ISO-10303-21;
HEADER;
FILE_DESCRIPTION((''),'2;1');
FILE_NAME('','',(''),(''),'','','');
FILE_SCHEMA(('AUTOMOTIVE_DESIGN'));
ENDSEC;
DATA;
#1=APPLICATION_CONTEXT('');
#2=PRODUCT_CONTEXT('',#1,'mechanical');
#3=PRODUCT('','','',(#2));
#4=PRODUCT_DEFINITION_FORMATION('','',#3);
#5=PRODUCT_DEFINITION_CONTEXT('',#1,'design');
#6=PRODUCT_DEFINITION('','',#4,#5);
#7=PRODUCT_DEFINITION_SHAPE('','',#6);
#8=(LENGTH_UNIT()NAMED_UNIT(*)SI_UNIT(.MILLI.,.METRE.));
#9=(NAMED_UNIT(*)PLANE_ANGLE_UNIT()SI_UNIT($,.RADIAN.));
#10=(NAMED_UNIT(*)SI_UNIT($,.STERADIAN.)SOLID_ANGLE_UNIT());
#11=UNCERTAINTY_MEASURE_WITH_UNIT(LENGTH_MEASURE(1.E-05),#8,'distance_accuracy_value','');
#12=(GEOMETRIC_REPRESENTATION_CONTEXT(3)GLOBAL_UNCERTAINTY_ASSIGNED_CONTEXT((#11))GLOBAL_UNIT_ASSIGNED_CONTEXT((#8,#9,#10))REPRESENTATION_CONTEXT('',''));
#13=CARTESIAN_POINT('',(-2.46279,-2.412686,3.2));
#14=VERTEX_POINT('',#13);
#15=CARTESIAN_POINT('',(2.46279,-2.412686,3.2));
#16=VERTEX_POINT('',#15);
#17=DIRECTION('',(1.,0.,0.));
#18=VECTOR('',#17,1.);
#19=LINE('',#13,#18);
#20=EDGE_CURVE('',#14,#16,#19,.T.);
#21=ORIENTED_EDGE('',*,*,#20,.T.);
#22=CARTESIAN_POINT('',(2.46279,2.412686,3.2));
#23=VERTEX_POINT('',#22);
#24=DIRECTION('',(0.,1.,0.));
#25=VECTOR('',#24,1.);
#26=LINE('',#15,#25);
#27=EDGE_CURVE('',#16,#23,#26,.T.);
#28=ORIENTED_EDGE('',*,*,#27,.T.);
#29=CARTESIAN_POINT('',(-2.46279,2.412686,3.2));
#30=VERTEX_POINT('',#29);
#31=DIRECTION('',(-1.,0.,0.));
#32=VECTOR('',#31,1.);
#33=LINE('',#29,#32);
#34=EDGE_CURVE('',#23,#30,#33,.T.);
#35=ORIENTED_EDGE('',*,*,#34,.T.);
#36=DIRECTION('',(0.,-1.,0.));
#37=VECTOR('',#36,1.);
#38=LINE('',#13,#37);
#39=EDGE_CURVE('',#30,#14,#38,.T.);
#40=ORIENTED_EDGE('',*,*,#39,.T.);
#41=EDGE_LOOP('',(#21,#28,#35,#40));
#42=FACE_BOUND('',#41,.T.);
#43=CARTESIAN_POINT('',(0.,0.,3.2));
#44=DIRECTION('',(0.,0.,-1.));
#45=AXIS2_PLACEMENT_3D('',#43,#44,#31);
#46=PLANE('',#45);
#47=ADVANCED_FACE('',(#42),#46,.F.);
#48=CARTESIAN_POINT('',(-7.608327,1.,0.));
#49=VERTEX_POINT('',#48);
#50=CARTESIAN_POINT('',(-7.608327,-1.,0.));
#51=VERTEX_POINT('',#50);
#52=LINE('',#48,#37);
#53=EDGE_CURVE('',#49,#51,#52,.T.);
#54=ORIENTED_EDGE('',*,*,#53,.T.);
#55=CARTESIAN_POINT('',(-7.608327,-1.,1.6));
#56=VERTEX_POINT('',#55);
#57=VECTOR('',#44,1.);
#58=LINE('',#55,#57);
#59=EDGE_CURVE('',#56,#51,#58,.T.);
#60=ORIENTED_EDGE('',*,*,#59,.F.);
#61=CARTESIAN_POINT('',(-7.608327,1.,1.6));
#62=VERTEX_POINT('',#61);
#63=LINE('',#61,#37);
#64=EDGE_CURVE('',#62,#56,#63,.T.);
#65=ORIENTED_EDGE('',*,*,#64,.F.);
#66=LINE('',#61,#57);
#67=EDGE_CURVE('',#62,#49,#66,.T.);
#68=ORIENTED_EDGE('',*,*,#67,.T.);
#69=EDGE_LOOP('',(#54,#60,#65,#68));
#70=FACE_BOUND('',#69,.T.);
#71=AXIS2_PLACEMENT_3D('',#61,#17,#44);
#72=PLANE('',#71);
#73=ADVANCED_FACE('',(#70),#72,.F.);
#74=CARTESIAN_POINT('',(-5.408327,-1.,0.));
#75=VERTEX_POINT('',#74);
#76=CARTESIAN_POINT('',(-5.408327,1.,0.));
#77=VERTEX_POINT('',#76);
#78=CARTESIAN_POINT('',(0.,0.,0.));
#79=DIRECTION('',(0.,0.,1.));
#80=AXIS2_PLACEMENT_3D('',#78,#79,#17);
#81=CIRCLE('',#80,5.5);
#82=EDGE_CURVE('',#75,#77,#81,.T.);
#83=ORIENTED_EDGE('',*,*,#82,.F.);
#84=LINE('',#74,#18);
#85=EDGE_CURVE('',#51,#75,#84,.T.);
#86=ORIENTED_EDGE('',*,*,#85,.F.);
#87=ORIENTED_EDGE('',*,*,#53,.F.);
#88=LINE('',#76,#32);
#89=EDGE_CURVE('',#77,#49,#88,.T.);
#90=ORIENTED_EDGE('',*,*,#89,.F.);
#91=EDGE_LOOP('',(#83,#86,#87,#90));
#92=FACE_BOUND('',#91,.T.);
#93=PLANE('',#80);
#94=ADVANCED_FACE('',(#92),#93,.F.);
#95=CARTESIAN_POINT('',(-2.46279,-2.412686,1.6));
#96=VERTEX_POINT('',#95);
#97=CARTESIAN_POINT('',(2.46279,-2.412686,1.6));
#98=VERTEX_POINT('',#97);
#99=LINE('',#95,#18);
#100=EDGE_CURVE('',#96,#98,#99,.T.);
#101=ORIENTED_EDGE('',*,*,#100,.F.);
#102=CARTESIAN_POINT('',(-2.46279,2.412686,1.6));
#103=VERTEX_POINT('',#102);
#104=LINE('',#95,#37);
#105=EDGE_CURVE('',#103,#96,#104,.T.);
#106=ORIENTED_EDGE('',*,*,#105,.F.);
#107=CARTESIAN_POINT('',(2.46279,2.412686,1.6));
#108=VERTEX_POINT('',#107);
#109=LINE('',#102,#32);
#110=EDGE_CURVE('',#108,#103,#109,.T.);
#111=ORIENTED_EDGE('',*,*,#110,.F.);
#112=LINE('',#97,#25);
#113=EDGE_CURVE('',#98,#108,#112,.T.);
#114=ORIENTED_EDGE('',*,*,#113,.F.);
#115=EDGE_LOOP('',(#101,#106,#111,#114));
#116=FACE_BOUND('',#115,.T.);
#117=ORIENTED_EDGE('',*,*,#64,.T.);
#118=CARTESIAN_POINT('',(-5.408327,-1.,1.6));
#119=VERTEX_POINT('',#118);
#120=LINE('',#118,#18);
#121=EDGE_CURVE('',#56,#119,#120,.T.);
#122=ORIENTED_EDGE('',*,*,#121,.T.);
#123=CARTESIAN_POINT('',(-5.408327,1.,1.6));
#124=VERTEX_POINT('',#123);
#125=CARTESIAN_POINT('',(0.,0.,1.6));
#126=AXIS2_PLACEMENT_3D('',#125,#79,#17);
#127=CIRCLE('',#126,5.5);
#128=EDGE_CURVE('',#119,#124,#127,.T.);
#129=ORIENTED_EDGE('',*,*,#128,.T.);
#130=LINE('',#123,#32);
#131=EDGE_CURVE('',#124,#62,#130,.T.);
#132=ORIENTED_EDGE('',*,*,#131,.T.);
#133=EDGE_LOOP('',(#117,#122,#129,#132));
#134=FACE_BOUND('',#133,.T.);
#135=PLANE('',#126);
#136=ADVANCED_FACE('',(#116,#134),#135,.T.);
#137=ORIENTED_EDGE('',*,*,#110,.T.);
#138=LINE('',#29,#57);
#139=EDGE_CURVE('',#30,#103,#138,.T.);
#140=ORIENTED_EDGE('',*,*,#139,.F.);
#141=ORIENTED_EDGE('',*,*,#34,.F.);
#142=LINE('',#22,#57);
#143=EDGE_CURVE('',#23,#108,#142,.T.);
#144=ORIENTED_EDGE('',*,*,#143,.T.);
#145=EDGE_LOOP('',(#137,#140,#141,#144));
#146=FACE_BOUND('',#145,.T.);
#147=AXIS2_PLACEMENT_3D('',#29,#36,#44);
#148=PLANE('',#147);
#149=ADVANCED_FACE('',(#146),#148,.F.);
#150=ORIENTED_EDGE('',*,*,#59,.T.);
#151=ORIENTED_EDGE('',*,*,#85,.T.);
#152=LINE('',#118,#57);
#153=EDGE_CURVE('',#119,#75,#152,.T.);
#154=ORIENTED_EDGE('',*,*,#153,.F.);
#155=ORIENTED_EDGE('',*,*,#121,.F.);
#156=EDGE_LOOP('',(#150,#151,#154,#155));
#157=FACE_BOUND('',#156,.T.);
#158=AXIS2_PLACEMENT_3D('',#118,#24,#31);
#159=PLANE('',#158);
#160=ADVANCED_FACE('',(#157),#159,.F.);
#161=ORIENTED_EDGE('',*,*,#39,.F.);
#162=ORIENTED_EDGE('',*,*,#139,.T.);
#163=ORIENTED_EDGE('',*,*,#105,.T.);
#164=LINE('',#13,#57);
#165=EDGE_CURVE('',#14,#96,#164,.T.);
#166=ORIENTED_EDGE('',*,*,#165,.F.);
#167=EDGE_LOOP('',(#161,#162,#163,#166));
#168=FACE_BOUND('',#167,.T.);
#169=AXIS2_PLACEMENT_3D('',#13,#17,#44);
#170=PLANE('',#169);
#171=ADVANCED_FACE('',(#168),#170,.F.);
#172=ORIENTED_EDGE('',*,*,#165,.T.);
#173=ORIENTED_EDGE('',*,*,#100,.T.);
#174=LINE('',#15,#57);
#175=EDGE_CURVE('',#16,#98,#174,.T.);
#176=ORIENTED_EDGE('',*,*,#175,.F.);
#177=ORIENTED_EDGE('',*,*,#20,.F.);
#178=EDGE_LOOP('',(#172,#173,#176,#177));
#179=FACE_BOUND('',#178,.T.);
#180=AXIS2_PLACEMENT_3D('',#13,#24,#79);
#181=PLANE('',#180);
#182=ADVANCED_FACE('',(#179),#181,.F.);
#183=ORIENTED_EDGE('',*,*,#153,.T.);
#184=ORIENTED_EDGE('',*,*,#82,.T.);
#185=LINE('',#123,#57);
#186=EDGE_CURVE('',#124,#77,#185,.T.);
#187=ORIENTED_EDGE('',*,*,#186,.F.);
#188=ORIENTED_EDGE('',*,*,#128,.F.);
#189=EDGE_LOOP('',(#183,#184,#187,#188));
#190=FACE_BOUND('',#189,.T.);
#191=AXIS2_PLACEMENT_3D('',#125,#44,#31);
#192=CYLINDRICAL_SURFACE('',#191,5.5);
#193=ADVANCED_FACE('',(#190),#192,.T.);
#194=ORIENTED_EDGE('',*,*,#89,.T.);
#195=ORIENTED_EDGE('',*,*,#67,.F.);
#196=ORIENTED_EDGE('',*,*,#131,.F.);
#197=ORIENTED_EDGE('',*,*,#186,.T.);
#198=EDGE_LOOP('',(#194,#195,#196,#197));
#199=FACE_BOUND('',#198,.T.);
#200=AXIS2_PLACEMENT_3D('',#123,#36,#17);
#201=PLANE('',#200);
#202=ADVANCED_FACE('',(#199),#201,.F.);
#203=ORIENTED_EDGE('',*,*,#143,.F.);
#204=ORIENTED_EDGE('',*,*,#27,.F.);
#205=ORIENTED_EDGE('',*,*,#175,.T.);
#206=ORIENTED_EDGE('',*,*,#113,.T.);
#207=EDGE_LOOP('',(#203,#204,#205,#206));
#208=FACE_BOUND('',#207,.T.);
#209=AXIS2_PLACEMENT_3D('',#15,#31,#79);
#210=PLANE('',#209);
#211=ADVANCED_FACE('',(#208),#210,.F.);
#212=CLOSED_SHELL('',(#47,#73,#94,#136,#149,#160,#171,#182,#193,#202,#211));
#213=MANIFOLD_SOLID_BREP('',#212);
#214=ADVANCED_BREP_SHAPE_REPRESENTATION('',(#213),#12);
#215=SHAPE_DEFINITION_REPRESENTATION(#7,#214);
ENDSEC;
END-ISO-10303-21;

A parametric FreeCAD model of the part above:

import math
import FreeCAD as App
import Part
import Sketcher
from FreeCAD import Vector
Q = App.Units.Quantity

doc = App.newDocument("Part")
params = doc.addObject("Spreadsheet::Sheet", "Params")
for row, (alias, value) in enumerate([
    ("sketch1_radius", "5.5 mm"),
    ("sketch1_height", "2 mm"),
    ("sketch1_width", "2.2 mm"),
    ("pad1_length", "1.6 mm"),
    ("pad2_length", "1.6 mm"),
], start=1):
    params.set(f"A{row}", alias)
    params.set(f"B{row}", "=" + value)
    params.setAlias(f"B{row}", alias)

body = doc.addObject("PartDesign::Body", "Body")

sketch1 = doc.addObject("Sketcher::SketchObject", "Sketch")
body.addObject(sketch1)
sketch1.AttachmentSupport = (doc.XY_Plane, [""])
sketch1.MapMode = "FlatFace"
sketch1.addGeometry(Part.LineSegment(Vector(-5.408327, 1, 0), Vector(-7.608327, 1, 0)), False)
sketch1.addGeometry(Part.LineSegment(Vector(-7.608327, 1, 0), Vector(-7.608327, -1, 0)), False)
sketch1.addGeometry(Part.LineSegment(Vector(-7.608327, -1, 0), Vector(-5.408327, -1, 0)), False)
sketch1.addGeometry(Part.ArcOfCircle(Part.Circle(Vector(0, 0, 0), Vector(0, 0, 1), 5.5), math.radians(-169.524318), math.radians(169.524318)), False)
sketch1.addConstraint(Sketcher.Constraint("Coincident", 0, 2, 1, 1))
sketch1.addConstraint(Sketcher.Constraint("Coincident", 1, 2, 2, 1))
sketch1.addConstraint(Sketcher.Constraint("Coincident", 2, 2, 3, 1))
sketch1.addConstraint(Sketcher.Constraint("Coincident", 3, 2, 0, 1))
sketch1.addConstraint(Sketcher.Constraint("Horizontal", 0))
sketch1.addConstraint(Sketcher.Constraint("Vertical", 1))
sketch1.addConstraint(Sketcher.Constraint("Horizontal", 2))
sketch1.addConstraint(Sketcher.Constraint("Coincident", 3, 3, -1, 1))
sketch1.addConstraint(Sketcher.Constraint("Vertical", 2, 2, 3, 2))
sketch1.addConstraint(Sketcher.Constraint("Radius", 3, Q("5.5 mm")))
sketch1.addConstraint(Sketcher.Constraint("DistanceY", 1, 2, 1, 1, Q("2 mm")))
sketch1.addConstraint(Sketcher.Constraint("DistanceX", 0, 2, 0, 1, Q("2.2 mm")))
sketch1.setExpression("Constraints[9]", "Params.sketch1_radius")
sketch1.setExpression("Constraints[10]", "Params.sketch1_height")
sketch1.setExpression("Constraints[11]", "Params.sketch1_width")
pad1 = doc.addObject("PartDesign::Pad", "Pad")
body.addObject(pad1)
pad1.Profile = sketch1
pad1.setExpression("Length", "Params.pad1_length")

sketch2 = doc.addObject("Sketcher::SketchObject", "Sketch001")
body.addObject(sketch2)
sketch2.AttachmentSupport = (doc.XY_Plane, [""])
sketch2.MapMode = "FlatFace"
sketch2.AttachmentOffset = App.Placement(Vector(0, 0, 1.6), App.Rotation())
sketch2.addGeometry(Part.LineSegment(Vector(-2.46279, 2.412686, 0), Vector(-2.46279, -2.412686, 0)), False)
sketch2.addGeometry(Part.LineSegment(Vector(-2.46279, -2.412686, 0), Vector(2.46279, -2.412686, 0)), False)
sketch2.addGeometry(Part.LineSegment(Vector(2.46279, -2.412686, 0), Vector(2.46279, 2.412686, 0)), False)
sketch2.addGeometry(Part.LineSegment(Vector(2.46279, 2.412686, 0), Vector(-2.46279, 2.412686, 0)), False)
sketch2.addConstraint(Sketcher.Constraint("Coincident", 0, 2, 1, 1))
sketch2.addConstraint(Sketcher.Constraint("Coincident", 1, 2, 2, 1))
sketch2.addConstraint(Sketcher.Constraint("Coincident", 2, 2, 3, 1))
sketch2.addConstraint(Sketcher.Constraint("Coincident", 3, 2, 0, 1))
sketch2.addConstraint(Sketcher.Constraint("Vertical", 0))
sketch2.addConstraint(Sketcher.Constraint("Horizontal", 1))
sketch2.addConstraint(Sketcher.Constraint("Vertical", 2))
sketch2.addConstraint(Sketcher.Constraint("Horizontal", 3))
sketch2.addConstraint(Sketcher.Constraint("Symmetric", 0, 2, 2, 2, -1, 1))
sketch2.addConstraint(Sketcher.Constraint("DistanceX", 1, 1, 1, 2, Q("4.925581 mm")))
sketch2.addConstraint(Sketcher.Constraint("DistanceY", 0, 2, 0, 1, Q("4.825372 mm")))
pad2 = doc.addObject("PartDesign::Pad", "Pad001")
body.addObject(pad2)
pad2.Profile = sketch2
pad2.setExpression("Length", "Params.pad2_length")

doc.recompute()
